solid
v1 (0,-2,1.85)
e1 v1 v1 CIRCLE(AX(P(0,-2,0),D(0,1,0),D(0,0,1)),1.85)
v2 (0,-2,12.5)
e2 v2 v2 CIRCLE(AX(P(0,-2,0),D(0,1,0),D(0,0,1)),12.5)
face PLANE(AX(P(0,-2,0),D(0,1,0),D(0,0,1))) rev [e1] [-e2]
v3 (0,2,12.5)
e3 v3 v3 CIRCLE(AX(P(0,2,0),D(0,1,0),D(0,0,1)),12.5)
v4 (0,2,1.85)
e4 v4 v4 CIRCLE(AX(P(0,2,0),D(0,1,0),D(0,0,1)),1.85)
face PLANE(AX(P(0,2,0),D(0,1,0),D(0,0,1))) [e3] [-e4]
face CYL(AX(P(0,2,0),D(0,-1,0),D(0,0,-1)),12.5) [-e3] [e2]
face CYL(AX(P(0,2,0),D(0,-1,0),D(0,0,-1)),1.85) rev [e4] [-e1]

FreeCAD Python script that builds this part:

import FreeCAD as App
import Part
import Sketcher
from FreeCAD import Vector
Q = App.Units.Quantity

doc = App.newDocument("Part")
body = doc.addObject("PartDesign::Body", "Body")

sketch1 = body.newObject("Sketcher::SketchObject", "Sketch")
sketch1.AttachmentSupport = (doc.getObject("XZ_Plane"), [""])
sketch1.MapMode = "FlatFace"
sketch1.addGeometry(Part.Circle(Vector(0, 0, 0), Vector(0, 0, 1), 12.5), False)
sketch1.addGeometry(Part.Circle(Vector(0, 0, 0), Vector(0, 0, 1), 1.9), False)
sketch1.addConstraint(Sketcher.Constraint("Coincident", 0, 3, -1, 1))
sketch1.addConstraint(Sketcher.Constraint("Coincident", 1, 3, -1, 1))
sketch1.addConstraint(Sketcher.Constraint("Diameter", 0, Q("25 mm")))
sketch1.addConstraint(Sketcher.Constraint("Diameter", 1, Q("3.7 mm")))
pad1 = body.newObject("PartDesign::Pad", "Pad")
pad1.Profile = sketch1
pad1.Length = 4
pad1.Midplane = True

doc.recompute()
